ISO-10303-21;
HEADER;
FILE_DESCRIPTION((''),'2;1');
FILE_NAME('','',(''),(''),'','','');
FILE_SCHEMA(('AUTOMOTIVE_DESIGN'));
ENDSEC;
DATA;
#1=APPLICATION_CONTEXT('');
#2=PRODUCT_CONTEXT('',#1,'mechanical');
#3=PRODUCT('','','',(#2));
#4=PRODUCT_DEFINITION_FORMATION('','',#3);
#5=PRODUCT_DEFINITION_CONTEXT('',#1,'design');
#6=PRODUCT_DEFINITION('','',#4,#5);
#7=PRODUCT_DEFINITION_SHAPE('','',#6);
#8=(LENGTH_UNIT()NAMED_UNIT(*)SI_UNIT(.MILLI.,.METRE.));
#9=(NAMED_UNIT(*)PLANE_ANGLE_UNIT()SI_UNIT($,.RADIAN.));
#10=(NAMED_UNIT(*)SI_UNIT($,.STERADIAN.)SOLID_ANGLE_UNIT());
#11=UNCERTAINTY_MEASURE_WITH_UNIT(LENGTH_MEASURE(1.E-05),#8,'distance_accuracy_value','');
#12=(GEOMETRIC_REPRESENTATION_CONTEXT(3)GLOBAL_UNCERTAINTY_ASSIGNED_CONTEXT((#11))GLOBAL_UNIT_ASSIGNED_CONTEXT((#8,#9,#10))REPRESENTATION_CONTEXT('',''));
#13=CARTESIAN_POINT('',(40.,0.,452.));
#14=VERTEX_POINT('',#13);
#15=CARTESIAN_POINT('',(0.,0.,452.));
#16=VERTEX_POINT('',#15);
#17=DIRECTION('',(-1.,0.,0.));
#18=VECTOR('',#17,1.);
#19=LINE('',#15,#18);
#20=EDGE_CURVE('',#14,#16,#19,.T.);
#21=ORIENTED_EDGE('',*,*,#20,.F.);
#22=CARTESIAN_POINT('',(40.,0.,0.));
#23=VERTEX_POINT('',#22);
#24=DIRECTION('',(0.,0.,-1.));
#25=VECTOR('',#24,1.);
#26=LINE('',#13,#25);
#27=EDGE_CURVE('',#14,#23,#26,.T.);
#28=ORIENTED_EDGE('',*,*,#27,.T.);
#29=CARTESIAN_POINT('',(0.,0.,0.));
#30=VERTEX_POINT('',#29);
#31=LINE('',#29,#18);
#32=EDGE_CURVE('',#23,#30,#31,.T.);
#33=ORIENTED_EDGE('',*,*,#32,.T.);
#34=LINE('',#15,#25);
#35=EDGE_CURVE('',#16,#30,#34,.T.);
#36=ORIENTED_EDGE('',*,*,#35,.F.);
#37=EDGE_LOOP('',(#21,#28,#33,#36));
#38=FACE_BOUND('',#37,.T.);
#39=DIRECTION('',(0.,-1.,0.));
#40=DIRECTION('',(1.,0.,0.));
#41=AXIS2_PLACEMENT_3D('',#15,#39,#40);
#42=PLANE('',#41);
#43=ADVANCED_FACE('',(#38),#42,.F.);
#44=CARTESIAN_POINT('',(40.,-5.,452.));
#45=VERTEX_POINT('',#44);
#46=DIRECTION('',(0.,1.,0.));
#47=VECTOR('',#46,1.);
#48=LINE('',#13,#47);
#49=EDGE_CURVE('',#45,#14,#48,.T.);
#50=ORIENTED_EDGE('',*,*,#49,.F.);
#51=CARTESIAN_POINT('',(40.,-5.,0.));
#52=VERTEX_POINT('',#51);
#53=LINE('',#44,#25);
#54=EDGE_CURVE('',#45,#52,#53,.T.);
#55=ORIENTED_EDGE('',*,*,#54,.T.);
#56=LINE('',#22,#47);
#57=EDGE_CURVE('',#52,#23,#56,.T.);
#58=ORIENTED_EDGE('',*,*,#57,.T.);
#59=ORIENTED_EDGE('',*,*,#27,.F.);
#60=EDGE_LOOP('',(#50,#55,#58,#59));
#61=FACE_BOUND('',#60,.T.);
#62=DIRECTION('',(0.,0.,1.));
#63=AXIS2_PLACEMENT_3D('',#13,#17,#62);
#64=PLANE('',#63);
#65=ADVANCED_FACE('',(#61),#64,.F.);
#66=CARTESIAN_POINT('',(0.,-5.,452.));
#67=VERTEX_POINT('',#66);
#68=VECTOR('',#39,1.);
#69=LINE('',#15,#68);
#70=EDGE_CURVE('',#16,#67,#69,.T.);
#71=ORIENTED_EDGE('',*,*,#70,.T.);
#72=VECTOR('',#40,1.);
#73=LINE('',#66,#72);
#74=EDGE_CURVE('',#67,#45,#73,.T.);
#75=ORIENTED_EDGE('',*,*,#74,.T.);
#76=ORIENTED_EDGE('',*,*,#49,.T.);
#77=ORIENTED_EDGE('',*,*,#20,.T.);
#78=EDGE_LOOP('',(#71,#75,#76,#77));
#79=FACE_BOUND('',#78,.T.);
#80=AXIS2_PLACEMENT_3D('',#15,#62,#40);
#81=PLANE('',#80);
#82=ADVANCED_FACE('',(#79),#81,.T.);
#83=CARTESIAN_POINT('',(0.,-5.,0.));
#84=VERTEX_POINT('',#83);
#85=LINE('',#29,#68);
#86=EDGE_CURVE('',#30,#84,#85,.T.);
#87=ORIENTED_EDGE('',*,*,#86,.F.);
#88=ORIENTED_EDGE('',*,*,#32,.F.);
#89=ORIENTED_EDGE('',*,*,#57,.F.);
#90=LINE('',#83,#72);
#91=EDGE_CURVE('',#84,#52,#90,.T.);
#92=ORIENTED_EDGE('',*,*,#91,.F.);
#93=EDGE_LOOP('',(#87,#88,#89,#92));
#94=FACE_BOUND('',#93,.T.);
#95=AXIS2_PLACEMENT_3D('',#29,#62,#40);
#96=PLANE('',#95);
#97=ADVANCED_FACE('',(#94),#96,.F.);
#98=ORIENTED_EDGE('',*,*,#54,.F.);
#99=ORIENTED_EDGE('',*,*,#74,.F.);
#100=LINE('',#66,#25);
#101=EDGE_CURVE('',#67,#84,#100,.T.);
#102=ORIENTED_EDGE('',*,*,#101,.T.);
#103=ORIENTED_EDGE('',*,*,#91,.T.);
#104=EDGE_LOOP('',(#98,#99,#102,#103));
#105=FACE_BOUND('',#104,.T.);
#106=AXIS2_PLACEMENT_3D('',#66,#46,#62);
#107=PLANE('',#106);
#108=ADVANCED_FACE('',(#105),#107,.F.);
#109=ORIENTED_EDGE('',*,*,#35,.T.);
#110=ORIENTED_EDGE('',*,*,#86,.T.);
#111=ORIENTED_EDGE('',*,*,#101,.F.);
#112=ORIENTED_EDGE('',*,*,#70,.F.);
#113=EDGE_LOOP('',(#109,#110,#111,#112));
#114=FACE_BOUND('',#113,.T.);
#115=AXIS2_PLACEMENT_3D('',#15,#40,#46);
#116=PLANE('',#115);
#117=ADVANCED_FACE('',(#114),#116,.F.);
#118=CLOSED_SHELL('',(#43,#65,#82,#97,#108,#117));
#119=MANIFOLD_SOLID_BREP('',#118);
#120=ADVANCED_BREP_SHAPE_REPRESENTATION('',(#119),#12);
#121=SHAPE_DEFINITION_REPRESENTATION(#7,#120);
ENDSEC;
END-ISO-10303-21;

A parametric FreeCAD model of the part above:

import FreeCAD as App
import Part
import Sketcher
Q = App.Units.Quantity


def add_polygon(sketch, points):
    """Adds a closed chain of lines whose ends are joined by coincident constraints."""
    first, n = sketch.GeometryCount, len(points)
    for a, b in zip(points, points[1:] + points[:1]):
        sketch.addGeometry(Part.LineSegment(App.Vector(*a, 0), App.Vector(*b, 0)), False)
    for i in range(n):
        sketch.addConstraint(Sketcher.Constraint("Coincident", first + i, 2, first + (i + 1) % n, 1))

doc = App.newDocument("Part")
params = doc.addObject("Spreadsheet::Sheet", "Params")
for row, (alias, value) in enumerate([
    ("sketch1_width", "40 mm"),
    ("sketch1_height", "5 mm"),
    ("pad1_length", "452 mm"),
], start=1):
    params.set(f"A{row}", alias)
    params.set(f"B{row}", "=" + value)
    params.setAlias(f"B{row}", alias)

body = doc.addObject("PartDesign::Body", "Body")

# Sketch on XY plane
sketch1 = body.newObject("Sketcher::SketchObject", "Sketch")
sketch1.AttachmentSupport = (doc.getObject("XY_Plane"), [""])
sketch1.MapMode = "FlatFace"
add_polygon(sketch1, [(0, 0), (0, -5), (40, -5), (40, 0)])  # lines 0-3
sketch1.addConstraint(Sketcher.Constraint("Vertical", 0))
sketch1.addConstraint(Sketcher.Constraint("Horizontal", 1))
sketch1.addConstraint(Sketcher.Constraint("Vertical", 2))
sketch1.addConstraint(Sketcher.Constraint("Horizontal", 3))
sketch1.addConstraint(Sketcher.Constraint("Coincident", 3, 2, -1, 1))
sketch1.addConstraint(Sketcher.Constraint("DistanceX", 1, 1, 1, 2, Q("40 mm")))
sketch1.addConstraint(Sketcher.Constraint("DistanceY", 0, 2, 0, 1, Q("5 mm")))
sketch1.setExpression("Constraints[9]", "Params.sketch1_width")
sketch1.setExpression("Constraints[10]", "Params.sketch1_height")
pad1 = body.newObject("PartDesign::Pad", "Pad")
pad1.Profile = sketch1
pad1.setExpression("Length", "Params.pad1_length")

doc.recompute()
